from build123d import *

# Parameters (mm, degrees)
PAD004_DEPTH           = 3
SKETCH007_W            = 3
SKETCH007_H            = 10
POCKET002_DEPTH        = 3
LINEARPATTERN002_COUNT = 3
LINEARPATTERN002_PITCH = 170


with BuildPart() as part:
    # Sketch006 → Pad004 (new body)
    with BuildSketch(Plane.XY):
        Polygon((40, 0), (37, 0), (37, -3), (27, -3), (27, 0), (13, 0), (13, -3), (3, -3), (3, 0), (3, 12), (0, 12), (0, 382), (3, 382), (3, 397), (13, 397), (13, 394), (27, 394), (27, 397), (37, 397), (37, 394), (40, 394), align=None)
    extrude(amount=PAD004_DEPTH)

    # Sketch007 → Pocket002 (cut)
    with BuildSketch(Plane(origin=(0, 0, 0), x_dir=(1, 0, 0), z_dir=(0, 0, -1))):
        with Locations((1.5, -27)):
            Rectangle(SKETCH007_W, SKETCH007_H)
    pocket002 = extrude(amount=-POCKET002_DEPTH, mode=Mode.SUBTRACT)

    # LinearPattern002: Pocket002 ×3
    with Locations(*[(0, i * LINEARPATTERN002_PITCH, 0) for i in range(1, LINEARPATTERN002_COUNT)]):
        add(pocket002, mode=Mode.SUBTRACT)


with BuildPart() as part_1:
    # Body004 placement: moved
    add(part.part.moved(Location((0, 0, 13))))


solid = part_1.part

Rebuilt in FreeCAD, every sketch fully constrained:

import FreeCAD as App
import Part
import Sketcher

V = App.Vector
Q = App.Units.Quantity


def add_polygon(sketch, points):
    """Adds a closed chain of lines whose ends are joined by coincident constraints."""
    first, n = sketch.GeometryCount, len(points)
    for a, b in zip(points, points[1:] + points[:1]):
        sketch.addGeometry(Part.LineSegment(App.Vector(*a, 0), App.Vector(*b, 0)), False)
    for i in range(n):
        sketch.addConstraint(Sketcher.Constraint("Coincident", first + i, 2, first + (i + 1) % n, 1))

doc = App.newDocument("Part")
body = doc.addObject("PartDesign::Body", "Body")

sketch1 = doc.addObject("Sketcher::SketchObject", "Sketch")
body.addObject(sketch1)
sketch1.AttachmentSupport = (doc.XY_Plane, [""])
sketch1.MapMode = "FlatFace"
add_polygon(sketch1, [(37, 0), (40, 0), (40, 394), (37, 394), (37, 397), (27, 397), (27, 394), (13, 394), (13, 397), (3, 397), (3, 382), (0, 382), (0, 12), (3, 12), (3, -3), (13, -3), (13, 0), (27, 0), (27, -3), (37, -3)])
sketch1.addConstraint([
    Sketcher.Constraint("Horizontal", 0),
    Sketcher.Constraint("Vertical", 1),
    Sketcher.Constraint("Horizontal", 2),
    Sketcher.Constraint("Vertical", 3),
    Sketcher.Constraint("Horizontal", 4),
    Sketcher.Constraint("Vertical", 5),
    Sketcher.Constraint("Horizontal", 6),
    Sketcher.Constraint("Vertical", 7),
    Sketcher.Constraint("Horizontal", 8),
    Sketcher.Constraint("Vertical", 9),
    Sketcher.Constraint("Horizontal", 10),
    Sketcher.Constraint("Vertical", 11),
    Sketcher.Constraint("Horizontal", 12),
    Sketcher.Constraint("Vertical", 13),
    Sketcher.Constraint("Horizontal", 14),
    Sketcher.Constraint("Vertical", 15),
    Sketcher.Constraint("Horizontal", 16),
    Sketcher.Constraint("Vertical", 17),
    Sketcher.Constraint("Horizontal", 18),
    Sketcher.Constraint("Vertical", 19),
    Sketcher.Constraint("PointOnObject", 0, 2, -1),
    Sketcher.Constraint("PointOnObject", 10, 2, -2),
    Sketcher.Constraint("PointOnObject", 15, 2, -1),
    Sketcher.Constraint("Horizontal", 2, 2, 5, 2),
    Sketcher.Constraint("Horizontal", 4, 2, 7, 2),
    Sketcher.Constraint("Horizontal", 14, 2, 17, 2),
    Sketcher.Constraint("Vertical", 9, 2, 12, 2),
    Sketcher.Constraint("Vertical", 7, 2, 14, 2),
    Sketcher.Constraint("Vertical", 5, 2, 16, 2),
    Sketcher.Constraint("Vertical", 3, 2, 18, 2),
    Sketcher.Constraint("Equal", 4, 8),
    Sketcher.Constraint("Equal", 2, 10),
    Sketcher.Constraint("Equal", 12, 3),
    Sketcher.Constraint("Equal", 9, 13),
    Sketcher.Constraint("Equal", 7, 15),
    Sketcher.Constraint("DistanceX", 0, 1, 0, 2, Q("3 mm")),
    Sketcher.Constraint("DistanceX", 4, 2, 4, 1, Q("10 mm")),
    Sketcher.Constraint("DistanceX", 6, 2, 6, 1, Q("14 mm")),
    Sketcher.Constraint("DistanceY", 1, 1, 1, 2, Q("394 mm")),
    Sketcher.Constraint("DistanceY", 9, 2, 9, 1, Q("15 mm")),
])
pad1 = doc.addObject("PartDesign::Pad", "Pad")
body.addObject(pad1)
pad1.Profile = sketch1
pad1.Length = 3

sketch2 = doc.addObject("Sketcher::SketchObject", "Sketch001")
body.addObject(sketch2)
sketch2.AttachmentSupport = (doc.XY_Plane, [""])
sketch2.MapMode = "FlatFace"
add_polygon(sketch2, [(0, 22), (0, 32), (3, 32), (3, 22)])
sketch2.addConstraint([
    Sketcher.Constraint("Vertical", 0),
    Sketcher.Constraint("Horizontal", 1),
    Sketcher.Constraint("Vertical", 2),
    Sketcher.Constraint("Horizontal", 3),
    Sketcher.Constraint("PointOnObject", 0, 2, -2),
    Sketcher.Constraint("DistanceX", 1, 1, 1, 2, Q("3 mm")),
    Sketcher.Constraint("DistanceY", 0, 1, 0, 2, Q("10 mm")),
    Sketcher.Constraint("DistanceY", -1, 1, 0, 2, Q("32 mm")),
])
pocket1 = doc.addObject("PartDesign::Pocket", "Pocket")
body.addObject(pocket1)
pocket1.Profile = sketch2
pocket1.Length = 3
pocket1.Reversed = True
doc.recompute()

linearpattern = doc.addObject("PartDesign::LinearPattern", "LinearPattern")
body.addObject(linearpattern)
linearpattern.Originals = [pocket1]
linearpattern.Direction = (doc.Y_Axis, [""])
linearpattern.Mode = "offset"
linearpattern.Offset = 170
linearpattern.Occurrences = 3
body.Tip = linearpattern
body2 = doc.addObject("PartDesign::Body", "Body001")
doc.recompute()

body.Placement = App.Placement(V(0, 0, 13), App.Rotation(V(0, 0, 1), 0))
boolean = doc.addObject("PartDesign::Boolean", "Boolean")
body2.addObject(boolean)
boolean.Type = "Fuse"
boolean.addObjects([body])

doc.recompute()
